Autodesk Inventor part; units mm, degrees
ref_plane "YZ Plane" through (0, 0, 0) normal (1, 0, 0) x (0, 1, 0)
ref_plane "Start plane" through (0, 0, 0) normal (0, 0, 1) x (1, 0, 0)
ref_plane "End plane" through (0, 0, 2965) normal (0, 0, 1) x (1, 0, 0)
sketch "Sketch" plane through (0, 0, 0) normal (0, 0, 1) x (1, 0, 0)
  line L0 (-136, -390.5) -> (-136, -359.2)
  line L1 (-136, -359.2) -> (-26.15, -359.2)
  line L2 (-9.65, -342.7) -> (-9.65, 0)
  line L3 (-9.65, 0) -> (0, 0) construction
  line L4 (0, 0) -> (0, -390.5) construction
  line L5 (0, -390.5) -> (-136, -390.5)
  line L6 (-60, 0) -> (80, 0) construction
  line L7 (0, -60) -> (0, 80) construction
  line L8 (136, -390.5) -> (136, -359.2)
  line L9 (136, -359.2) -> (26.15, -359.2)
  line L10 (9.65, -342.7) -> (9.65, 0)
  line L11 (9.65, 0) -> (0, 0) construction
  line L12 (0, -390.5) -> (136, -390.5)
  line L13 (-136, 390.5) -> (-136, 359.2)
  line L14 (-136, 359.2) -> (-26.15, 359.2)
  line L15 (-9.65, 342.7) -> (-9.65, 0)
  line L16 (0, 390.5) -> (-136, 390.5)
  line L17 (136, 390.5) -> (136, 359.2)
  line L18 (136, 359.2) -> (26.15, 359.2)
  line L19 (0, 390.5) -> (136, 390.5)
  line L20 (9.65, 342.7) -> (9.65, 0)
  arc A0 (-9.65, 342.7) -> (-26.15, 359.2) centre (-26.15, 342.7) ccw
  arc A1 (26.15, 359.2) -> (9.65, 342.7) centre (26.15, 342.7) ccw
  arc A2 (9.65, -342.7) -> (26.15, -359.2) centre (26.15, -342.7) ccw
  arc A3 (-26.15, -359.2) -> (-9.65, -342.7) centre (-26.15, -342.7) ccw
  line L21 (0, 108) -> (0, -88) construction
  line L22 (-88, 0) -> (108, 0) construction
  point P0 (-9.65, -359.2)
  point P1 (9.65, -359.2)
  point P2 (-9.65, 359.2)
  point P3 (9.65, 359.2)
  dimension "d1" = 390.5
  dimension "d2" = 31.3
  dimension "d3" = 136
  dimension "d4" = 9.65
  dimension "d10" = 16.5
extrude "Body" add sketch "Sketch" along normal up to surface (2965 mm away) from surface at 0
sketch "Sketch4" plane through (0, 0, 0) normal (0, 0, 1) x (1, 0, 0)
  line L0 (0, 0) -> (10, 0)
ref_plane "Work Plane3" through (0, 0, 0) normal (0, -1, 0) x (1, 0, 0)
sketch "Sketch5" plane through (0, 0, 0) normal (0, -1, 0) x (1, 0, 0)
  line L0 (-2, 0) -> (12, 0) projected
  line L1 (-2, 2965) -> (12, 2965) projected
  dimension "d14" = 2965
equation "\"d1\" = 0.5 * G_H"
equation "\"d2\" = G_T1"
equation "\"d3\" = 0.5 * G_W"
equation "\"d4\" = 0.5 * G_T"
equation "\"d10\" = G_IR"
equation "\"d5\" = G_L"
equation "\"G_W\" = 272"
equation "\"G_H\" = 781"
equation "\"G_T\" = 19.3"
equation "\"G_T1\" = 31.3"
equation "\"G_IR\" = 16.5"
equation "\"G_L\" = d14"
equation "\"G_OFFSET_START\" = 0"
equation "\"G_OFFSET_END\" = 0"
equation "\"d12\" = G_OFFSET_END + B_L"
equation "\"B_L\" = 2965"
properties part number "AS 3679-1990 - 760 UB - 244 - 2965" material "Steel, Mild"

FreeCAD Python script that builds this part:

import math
import FreeCAD as App
import Part
import Sketcher

V = App.Vector

doc = App.newDocument("Part")
params = doc.addObject("Spreadsheet::Sheet", "Params")
for row, (alias, value) in enumerate([
    ("sketch1_radius", "16.5 mm"),
    ("sketch1_height", "31.3 mm"),
    ("pad1_length", "2965 mm"),
], start=1):
    params.set(f"A{row}", alias)
    params.set(f"B{row}", "=" + value)
    params.setAlias(f"B{row}", alias)

body = doc.addObject("PartDesign::Body", "Body")

# Sketch on XY plane
sketch1 = body.newObject("Sketcher::SketchObject", "Sketch")
sketch1.AttachmentSupport = (doc.getObject("XY_Plane"), [""])
sketch1.MapMode = "FlatFace"
sketch1.addGeometry([
    Part.LineSegment(V(-136, -359.2, 0), V(-136, -390.5, 0)),  # 0
    Part.LineSegment(V(-136, -390.5, 0), V(136, -390.5, 0)),  # 1
    Part.LineSegment(V(136, -390.5, 0), V(136, -359.2, 0)),  # 2
    Part.LineSegment(V(136, -359.2, 0), V(26.15, -359.2, 0)),  # 3
    Part.ArcOfCircle(Part.Circle(V(26.15, -342.7, 0), V(0, 0, 1), 16.5), math.radians(180), math.radians(270)),  # 4
    Part.LineSegment(V(9.65, -342.7, 0), V(9.65, 342.7, 0)),  # 5
    Part.ArcOfCircle(Part.Circle(V(26.15, 342.7, 0), V(0, 0, 1), 16.5), math.radians(90), math.radians(180)),  # 6
    Part.LineSegment(V(26.15, 359.2, 0), V(136, 359.2, 0)),  # 7
    Part.LineSegment(V(136, 359.2, 0), V(136, 390.5, 0)),  # 8
    Part.LineSegment(V(136, 390.5, 0), V(-136, 390.5, 0)),  # 9
    Part.LineSegment(V(-136, 390.5, 0), V(-136, 359.2, 0)),  # 10
    Part.LineSegment(V(-136, 359.2, 0), V(-26.15, 359.2, 0)),  # 11
    Part.ArcOfCircle(Part.Circle(V(-26.15, 342.7, 0), V(0, 0, 1), 16.5), math.radians(0), math.radians(90)),  # 12
    Part.LineSegment(V(-9.65, 342.7, 0), V(-9.65, -342.7, 0)),  # 13
    Part.ArcOfCircle(Part.Circle(V(-26.15, -342.7, 0), V(0, 0, 1), 16.5), math.radians(-90), math.radians(0)),  # 14
    Part.LineSegment(V(-26.15, -359.2, 0), V(-136, -359.2, 0)),  # 15
], False)
sketch1.addConstraint([
    Sketcher.Constraint("Coincident", 0, 2, 1, 1),
    Sketcher.Constraint("Coincident", 1, 2, 2, 1),
    Sketcher.Constraint("Coincident", 2, 2, 3, 1),
    Sketcher.Constraint("Tangent", 3, 2, 4, 2),
    Sketcher.Constraint("Tangent", 4, 1, 5, 1),
    Sketcher.Constraint("Tangent", 5, 2, 6, 2),
    Sketcher.Constraint("Tangent", 6, 1, 7, 1),
    Sketcher.Constraint("Coincident", 7, 2, 8, 1),
    Sketcher.Constraint("Coincident", 8, 2, 9, 1),
    Sketcher.Constraint("Coincident", 9, 2, 10, 1),
    Sketcher.Constraint("Coincident", 10, 2, 11, 1),
    Sketcher.Constraint("Tangent", 11, 2, 12, 2),
    Sketcher.Constraint("Tangent", 12, 1, 13, 1),
    Sketcher.Constraint("Tangent", 13, 2, 14, 2),
    Sketcher.Constraint("Tangent", 14, 1, 15, 1),
    Sketcher.Constraint("Coincident", 15, 2, 0, 1),
    Sketcher.Constraint("Vertical", 0),
    Sketcher.Constraint("Horizontal", 1),
    Sketcher.Constraint("Vertical", 2),
    Sketcher.Constraint("Horizontal", 3),
    Sketcher.Constraint("Vertical", 5),
    Sketcher.Constraint("Horizontal", 7),
    Sketcher.Constraint("Vertical", 8),
    Sketcher.Constraint("Horizontal", 9),
    Sketcher.Constraint("Vertical", 10),
    Sketcher.Constraint("Horizontal", 11),
    Sketcher.Constraint("Vertical", 13),
    Sketcher.Constraint("Horizontal", 15),
    Sketcher.Constraint("Equal", 4, 6),
    Sketcher.Constraint("Equal", 6, 12),
    Sketcher.Constraint("Equal", 12, 14),
    Sketcher.Constraint("Symmetric", 4, 3, 12, 3, -1, 1),
    Sketcher.Constraint("Symmetric", 0, 2, 8, 2, -1, 1),
    Sketcher.Constraint("Symmetric", 7, 2, 10, 2, -2),
    Sketcher.Constraint("Symmetric", 2, 2, 15, 2, -2),
    Sketcher.Constraint("Radius", 4, 16.5),
    Sketcher.Constraint("DistanceY", 0, 2, 0, 1, 31.3),
    Sketcher.Constraint("DistanceX", 0, 2, -1, 1, 136.0),
    Sketcher.Constraint("DistanceY", 0, 2, -1, 1, 390.5),
    Sketcher.Constraint("DistanceX", -1, 1, 4, 1, 9.65),
])
sketch1.setExpression("Constraints[35]", "Params.sketch1_radius")
sketch1.setExpression("Constraints[36]", "Params.sketch1_height")
pad1 = body.newObject("PartDesign::Pad", "Pad")
pad1.Profile = sketch1
pad1.setExpression("Length", "Params.pad1_length")

doc.recompute()
